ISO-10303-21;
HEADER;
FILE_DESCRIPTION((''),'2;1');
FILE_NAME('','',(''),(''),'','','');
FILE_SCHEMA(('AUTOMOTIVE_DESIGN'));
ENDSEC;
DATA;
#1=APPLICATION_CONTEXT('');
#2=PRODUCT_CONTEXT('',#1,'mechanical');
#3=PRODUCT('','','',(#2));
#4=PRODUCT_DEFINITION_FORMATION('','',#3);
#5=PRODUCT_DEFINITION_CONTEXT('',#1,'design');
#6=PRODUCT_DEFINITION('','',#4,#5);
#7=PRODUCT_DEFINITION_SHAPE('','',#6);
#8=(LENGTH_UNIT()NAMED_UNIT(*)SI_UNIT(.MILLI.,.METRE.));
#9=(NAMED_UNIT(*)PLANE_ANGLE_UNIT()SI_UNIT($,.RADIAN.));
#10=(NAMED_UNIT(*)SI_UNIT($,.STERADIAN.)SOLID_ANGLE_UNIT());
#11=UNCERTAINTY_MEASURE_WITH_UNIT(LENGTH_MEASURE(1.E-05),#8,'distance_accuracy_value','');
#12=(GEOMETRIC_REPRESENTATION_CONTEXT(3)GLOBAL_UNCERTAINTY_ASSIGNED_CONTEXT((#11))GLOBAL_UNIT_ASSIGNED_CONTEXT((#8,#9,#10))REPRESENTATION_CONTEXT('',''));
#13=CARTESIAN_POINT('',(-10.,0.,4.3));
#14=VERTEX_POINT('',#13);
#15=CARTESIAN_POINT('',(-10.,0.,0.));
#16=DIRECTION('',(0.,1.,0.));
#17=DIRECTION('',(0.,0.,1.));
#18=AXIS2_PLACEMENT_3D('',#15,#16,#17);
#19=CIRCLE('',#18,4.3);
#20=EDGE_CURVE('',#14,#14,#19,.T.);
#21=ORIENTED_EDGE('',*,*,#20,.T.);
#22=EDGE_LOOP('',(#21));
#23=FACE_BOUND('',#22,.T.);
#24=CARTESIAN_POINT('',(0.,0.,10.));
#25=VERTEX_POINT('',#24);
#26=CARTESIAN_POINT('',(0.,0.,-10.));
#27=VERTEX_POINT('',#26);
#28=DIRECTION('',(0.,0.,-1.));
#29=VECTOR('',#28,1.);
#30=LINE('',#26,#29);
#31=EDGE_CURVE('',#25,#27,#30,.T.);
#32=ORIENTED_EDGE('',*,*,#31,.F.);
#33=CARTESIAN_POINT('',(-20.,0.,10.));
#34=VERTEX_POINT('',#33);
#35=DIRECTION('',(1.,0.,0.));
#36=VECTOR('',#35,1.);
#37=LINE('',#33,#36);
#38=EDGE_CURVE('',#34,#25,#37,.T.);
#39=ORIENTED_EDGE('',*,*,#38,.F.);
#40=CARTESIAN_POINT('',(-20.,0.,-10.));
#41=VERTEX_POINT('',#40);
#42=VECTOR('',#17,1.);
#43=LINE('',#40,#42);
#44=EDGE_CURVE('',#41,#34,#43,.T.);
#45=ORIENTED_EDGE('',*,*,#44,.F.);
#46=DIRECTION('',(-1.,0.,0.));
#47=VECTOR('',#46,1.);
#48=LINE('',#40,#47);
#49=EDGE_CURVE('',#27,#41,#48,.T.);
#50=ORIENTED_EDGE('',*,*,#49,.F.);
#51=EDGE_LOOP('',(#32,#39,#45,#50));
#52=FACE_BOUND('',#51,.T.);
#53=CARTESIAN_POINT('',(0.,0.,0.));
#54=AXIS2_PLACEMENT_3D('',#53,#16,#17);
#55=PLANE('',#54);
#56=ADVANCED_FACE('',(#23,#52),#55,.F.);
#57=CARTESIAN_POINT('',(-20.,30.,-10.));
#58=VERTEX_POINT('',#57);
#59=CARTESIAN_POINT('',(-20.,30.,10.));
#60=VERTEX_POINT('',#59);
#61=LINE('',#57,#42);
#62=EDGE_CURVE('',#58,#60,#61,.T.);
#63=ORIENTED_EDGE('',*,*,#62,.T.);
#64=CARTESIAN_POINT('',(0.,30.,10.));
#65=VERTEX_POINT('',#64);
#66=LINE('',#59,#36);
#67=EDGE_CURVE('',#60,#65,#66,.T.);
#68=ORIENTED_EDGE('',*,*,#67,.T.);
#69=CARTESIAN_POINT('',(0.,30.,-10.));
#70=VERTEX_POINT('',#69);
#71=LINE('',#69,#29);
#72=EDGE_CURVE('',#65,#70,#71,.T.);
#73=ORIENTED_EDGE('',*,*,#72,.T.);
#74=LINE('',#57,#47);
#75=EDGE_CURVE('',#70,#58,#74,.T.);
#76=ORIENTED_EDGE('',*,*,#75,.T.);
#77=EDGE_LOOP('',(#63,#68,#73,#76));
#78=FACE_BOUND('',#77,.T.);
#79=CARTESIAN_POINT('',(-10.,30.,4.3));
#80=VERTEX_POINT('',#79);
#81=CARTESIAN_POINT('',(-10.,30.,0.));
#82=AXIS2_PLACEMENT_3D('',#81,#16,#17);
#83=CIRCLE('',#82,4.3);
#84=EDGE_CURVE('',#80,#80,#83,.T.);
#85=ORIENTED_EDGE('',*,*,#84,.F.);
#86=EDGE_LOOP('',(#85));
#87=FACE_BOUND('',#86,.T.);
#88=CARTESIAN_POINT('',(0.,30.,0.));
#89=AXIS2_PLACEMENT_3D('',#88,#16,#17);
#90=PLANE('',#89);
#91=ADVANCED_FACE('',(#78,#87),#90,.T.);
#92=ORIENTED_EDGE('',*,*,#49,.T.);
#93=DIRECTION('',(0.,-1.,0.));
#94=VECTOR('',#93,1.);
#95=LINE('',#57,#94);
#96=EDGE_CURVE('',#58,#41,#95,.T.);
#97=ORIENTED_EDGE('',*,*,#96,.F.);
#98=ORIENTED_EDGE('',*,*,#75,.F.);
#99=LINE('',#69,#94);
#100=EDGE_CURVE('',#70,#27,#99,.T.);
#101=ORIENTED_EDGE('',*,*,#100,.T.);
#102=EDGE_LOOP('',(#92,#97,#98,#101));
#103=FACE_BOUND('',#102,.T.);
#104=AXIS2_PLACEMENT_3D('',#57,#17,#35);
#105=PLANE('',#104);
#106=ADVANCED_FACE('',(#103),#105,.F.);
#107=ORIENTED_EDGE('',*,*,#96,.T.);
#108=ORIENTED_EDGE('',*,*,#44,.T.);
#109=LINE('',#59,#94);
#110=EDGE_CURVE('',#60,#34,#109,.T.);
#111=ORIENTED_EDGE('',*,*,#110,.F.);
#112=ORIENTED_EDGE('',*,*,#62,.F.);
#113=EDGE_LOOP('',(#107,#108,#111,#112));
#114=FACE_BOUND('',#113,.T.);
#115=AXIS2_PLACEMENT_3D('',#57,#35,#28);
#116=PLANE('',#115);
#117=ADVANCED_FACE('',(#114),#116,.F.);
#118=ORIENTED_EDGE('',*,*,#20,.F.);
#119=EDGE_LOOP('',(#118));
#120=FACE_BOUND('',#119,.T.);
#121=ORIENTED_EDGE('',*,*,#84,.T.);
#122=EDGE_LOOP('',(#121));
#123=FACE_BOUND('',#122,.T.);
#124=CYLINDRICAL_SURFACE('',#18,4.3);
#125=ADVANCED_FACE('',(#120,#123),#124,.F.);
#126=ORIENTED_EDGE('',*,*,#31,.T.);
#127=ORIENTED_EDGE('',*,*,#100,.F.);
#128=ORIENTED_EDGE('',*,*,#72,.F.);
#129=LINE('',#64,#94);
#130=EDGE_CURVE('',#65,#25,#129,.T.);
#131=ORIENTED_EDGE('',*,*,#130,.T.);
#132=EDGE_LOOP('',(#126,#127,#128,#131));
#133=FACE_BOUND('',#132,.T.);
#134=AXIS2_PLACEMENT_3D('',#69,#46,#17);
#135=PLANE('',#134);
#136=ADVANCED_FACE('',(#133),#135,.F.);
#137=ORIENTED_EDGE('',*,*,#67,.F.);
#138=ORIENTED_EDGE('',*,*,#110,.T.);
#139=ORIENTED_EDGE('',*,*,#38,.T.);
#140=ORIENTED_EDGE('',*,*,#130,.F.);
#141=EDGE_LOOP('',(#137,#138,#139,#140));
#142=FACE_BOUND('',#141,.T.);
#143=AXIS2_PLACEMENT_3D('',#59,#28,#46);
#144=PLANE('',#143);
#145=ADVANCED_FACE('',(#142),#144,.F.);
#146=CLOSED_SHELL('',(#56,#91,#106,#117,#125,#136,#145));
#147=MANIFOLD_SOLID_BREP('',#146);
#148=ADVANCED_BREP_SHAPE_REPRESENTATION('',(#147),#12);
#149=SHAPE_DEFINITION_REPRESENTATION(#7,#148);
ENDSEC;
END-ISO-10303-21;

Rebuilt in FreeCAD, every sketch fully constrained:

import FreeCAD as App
import Part
import Sketcher
from FreeCAD import Vector


def add_polygon(sketch, points):
    """Adds a closed chain of lines whose ends are joined by coincident constraints."""
    first, n = sketch.GeometryCount, len(points)
    for a, b in zip(points, points[1:] + points[:1]):
        sketch.addGeometry(Part.LineSegment(App.Vector(*a, 0), App.Vector(*b, 0)), False)
    for i in range(n):
        sketch.addConstraint(Sketcher.Constraint("Coincident", first + i, 2, first + (i + 1) % n, 1))

doc = App.newDocument("Part")
body = doc.addObject("PartDesign::Body", "Body")

sketch1 = body.newObject("Sketcher::SketchObject", "Sketch")
sketch1.AttachmentSupport = (doc.getObject("XZ_Plane"), [""])
sketch1.MapMode = "FlatFace"
add_polygon(sketch1, [(-20, -10), (-20, 10), (0, 10), (0, -10)])
sketch1.addConstraint([
    Sketcher.Constraint("Vertical", 0),
    Sketcher.Constraint("Horizontal", 1),
    Sketcher.Constraint("Vertical", 2),
    Sketcher.Constraint("Horizontal", 3),
    Sketcher.Constraint("Symmetric", 1, 2, 2, 2, -1, 1),
    Sketcher.Constraint("Equal", 3, 0),
    Sketcher.Constraint("DistanceX", 1, 1, 1, 2, 20.0),
])
pad1 = body.newObject("PartDesign::Pad", "Pad")
pad1.Profile = sketch1
pad1.Length = 30
pad1.Reversed = True

sketch2 = body.newObject("Sketcher::SketchObject", "Sketch001")
sketch2.AttachmentSupport = (doc.getObject("XZ_Plane"), [""])
sketch2.MapMode = "FlatFace"
sketch2.AttachmentOffset = App.Placement(Vector(0, 0, -30), App.Rotation())
sketch2.addGeometry(Part.Circle(Vector(-10, 0, 0), Vector(0, 0, 1), 4.3), False)
sketch2.addConstraint([
    Sketcher.Constraint("PointOnObject", 0, 3, -1),
    Sketcher.Constraint("Diameter", 0, 8.6),
    Sketcher.Constraint("DistanceX", 0, 3, -1, 1, 10.0),
])
pocket1 = body.newObject("PartDesign::Pocket", "Pocket")
pocket1.Profile = sketch2
pocket1.Type = "ThroughAll"
pocket1.Reversed = True

doc.recompute()
